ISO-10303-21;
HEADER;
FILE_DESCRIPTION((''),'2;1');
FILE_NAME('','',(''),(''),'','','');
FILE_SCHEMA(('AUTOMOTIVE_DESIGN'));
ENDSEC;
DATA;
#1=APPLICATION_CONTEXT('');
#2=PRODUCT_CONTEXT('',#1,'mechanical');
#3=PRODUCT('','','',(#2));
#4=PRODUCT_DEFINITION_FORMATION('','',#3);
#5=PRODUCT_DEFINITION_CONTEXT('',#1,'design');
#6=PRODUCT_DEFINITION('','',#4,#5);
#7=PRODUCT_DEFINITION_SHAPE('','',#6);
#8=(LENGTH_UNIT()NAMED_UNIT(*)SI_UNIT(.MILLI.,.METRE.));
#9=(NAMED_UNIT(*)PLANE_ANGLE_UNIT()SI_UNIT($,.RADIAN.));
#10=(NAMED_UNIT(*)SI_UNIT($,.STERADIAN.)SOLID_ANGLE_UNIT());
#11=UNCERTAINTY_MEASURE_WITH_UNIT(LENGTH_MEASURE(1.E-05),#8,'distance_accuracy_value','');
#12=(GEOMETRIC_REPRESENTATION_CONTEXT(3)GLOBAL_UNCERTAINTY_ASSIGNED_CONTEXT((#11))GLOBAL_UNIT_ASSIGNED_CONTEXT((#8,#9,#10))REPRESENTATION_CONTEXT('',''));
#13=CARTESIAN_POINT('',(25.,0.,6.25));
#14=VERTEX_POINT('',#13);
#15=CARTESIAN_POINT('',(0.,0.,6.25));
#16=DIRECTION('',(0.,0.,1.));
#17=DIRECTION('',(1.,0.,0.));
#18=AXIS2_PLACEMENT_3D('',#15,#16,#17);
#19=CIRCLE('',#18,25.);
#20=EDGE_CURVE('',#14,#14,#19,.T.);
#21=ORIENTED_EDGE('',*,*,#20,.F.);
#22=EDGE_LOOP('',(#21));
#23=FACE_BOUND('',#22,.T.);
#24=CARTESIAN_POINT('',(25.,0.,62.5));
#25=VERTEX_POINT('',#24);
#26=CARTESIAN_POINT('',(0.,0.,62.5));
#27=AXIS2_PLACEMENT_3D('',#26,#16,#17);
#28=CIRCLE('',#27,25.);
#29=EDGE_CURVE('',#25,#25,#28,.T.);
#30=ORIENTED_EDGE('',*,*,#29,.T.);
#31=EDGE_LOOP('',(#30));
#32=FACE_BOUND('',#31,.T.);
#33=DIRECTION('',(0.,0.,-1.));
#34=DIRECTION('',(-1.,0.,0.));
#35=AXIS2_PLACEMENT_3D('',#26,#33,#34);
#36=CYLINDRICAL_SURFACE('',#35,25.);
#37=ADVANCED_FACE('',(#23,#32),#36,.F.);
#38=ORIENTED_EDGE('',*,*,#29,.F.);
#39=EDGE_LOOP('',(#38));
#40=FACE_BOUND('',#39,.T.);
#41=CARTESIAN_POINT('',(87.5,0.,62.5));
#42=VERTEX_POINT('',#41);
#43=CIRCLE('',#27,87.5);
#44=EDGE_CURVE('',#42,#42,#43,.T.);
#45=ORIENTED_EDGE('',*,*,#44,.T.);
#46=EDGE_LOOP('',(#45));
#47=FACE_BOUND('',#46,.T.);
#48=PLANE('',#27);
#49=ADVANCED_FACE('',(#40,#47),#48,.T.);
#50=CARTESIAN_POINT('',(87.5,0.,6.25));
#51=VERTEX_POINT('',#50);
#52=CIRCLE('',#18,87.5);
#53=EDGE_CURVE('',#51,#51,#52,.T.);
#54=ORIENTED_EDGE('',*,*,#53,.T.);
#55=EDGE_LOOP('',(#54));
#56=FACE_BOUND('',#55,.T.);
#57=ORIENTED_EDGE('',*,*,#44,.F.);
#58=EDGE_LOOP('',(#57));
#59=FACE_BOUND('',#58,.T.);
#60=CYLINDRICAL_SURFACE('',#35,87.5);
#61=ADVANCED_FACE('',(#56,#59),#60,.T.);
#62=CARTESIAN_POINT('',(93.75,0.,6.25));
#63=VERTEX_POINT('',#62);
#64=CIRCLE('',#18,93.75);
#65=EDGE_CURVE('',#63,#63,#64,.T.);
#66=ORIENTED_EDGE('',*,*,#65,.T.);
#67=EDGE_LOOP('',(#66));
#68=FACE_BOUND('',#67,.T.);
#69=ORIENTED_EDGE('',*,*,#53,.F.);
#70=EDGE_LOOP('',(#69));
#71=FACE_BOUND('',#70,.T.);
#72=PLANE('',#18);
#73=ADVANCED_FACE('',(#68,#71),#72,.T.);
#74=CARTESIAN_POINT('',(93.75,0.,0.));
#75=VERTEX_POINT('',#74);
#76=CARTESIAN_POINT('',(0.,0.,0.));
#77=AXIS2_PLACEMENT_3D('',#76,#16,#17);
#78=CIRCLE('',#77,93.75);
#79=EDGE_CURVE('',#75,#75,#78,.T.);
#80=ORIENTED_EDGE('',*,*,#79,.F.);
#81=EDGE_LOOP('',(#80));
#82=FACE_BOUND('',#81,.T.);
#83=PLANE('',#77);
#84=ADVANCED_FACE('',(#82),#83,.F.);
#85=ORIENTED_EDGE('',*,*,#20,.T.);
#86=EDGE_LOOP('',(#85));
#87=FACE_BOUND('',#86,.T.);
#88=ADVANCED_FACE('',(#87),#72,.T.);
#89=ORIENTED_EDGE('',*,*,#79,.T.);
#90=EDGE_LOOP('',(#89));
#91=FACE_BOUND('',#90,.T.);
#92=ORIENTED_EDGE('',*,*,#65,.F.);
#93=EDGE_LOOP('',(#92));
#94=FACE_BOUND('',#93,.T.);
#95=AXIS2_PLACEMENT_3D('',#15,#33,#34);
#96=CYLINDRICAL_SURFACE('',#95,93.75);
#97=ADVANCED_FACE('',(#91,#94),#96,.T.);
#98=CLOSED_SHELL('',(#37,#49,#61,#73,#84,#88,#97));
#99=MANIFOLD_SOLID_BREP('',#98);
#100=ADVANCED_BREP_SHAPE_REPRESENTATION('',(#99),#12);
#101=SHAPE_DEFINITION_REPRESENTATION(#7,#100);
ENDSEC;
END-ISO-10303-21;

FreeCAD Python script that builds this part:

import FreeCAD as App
import Part
import Sketcher

V = App.Vector
Q = App.Units.Quantity

doc = App.newDocument("Part")
body = doc.addObject("PartDesign::Body", "Body")

sketch1 = body.newObject("Sketcher::SketchObject", "Sketch")
sketch1.AttachmentSupport = (doc.getObject("XY_Plane"), [""])
sketch1.MapMode = "FlatFace"
sketch1.addGeometry([
    Part.Circle(V(0, 0, 0), V(0, 0, 1), 88),
    Part.Circle(V(0, 0, 0), V(0, 0, 1), 25),
], False)
sketch1.addConstraint([
    Sketcher.Constraint("Coincident", 0, 3, -1, 1),
    Sketcher.Constraint("Coincident", 1, 3, -1, 1),
    Sketcher.Constraint("Diameter", 0, Q("175 mm")),
    Sketcher.Constraint("Diameter", 1, Q("50 mm")),
])
pad1 = body.newObject("PartDesign::Pad", "Pad")
pad1.Profile = sketch1
pad1.Length = 62.5

sketch2 = body.newObject("Sketcher::SketchObject", "Sketch001")
sketch2.AttachmentSupport = (doc.getObject("XY_Plane"), [""])
sketch2.MapMode = "FlatFace"
sketch2.addGeometry(Part.Circle(V(0, 0, 0), V(0, 0, 1), 94), False)
sketch2.addConstraint([
    Sketcher.Constraint("Coincident", 0, 3, -1, 1),
    Sketcher.Constraint("Diameter", 0, Q("187.5 mm")),
])
pad2 = body.newObject("PartDesign::Pad", "Pad001")
pad2.Profile = sketch2
pad2.Length = 6.25

doc.recompute()
